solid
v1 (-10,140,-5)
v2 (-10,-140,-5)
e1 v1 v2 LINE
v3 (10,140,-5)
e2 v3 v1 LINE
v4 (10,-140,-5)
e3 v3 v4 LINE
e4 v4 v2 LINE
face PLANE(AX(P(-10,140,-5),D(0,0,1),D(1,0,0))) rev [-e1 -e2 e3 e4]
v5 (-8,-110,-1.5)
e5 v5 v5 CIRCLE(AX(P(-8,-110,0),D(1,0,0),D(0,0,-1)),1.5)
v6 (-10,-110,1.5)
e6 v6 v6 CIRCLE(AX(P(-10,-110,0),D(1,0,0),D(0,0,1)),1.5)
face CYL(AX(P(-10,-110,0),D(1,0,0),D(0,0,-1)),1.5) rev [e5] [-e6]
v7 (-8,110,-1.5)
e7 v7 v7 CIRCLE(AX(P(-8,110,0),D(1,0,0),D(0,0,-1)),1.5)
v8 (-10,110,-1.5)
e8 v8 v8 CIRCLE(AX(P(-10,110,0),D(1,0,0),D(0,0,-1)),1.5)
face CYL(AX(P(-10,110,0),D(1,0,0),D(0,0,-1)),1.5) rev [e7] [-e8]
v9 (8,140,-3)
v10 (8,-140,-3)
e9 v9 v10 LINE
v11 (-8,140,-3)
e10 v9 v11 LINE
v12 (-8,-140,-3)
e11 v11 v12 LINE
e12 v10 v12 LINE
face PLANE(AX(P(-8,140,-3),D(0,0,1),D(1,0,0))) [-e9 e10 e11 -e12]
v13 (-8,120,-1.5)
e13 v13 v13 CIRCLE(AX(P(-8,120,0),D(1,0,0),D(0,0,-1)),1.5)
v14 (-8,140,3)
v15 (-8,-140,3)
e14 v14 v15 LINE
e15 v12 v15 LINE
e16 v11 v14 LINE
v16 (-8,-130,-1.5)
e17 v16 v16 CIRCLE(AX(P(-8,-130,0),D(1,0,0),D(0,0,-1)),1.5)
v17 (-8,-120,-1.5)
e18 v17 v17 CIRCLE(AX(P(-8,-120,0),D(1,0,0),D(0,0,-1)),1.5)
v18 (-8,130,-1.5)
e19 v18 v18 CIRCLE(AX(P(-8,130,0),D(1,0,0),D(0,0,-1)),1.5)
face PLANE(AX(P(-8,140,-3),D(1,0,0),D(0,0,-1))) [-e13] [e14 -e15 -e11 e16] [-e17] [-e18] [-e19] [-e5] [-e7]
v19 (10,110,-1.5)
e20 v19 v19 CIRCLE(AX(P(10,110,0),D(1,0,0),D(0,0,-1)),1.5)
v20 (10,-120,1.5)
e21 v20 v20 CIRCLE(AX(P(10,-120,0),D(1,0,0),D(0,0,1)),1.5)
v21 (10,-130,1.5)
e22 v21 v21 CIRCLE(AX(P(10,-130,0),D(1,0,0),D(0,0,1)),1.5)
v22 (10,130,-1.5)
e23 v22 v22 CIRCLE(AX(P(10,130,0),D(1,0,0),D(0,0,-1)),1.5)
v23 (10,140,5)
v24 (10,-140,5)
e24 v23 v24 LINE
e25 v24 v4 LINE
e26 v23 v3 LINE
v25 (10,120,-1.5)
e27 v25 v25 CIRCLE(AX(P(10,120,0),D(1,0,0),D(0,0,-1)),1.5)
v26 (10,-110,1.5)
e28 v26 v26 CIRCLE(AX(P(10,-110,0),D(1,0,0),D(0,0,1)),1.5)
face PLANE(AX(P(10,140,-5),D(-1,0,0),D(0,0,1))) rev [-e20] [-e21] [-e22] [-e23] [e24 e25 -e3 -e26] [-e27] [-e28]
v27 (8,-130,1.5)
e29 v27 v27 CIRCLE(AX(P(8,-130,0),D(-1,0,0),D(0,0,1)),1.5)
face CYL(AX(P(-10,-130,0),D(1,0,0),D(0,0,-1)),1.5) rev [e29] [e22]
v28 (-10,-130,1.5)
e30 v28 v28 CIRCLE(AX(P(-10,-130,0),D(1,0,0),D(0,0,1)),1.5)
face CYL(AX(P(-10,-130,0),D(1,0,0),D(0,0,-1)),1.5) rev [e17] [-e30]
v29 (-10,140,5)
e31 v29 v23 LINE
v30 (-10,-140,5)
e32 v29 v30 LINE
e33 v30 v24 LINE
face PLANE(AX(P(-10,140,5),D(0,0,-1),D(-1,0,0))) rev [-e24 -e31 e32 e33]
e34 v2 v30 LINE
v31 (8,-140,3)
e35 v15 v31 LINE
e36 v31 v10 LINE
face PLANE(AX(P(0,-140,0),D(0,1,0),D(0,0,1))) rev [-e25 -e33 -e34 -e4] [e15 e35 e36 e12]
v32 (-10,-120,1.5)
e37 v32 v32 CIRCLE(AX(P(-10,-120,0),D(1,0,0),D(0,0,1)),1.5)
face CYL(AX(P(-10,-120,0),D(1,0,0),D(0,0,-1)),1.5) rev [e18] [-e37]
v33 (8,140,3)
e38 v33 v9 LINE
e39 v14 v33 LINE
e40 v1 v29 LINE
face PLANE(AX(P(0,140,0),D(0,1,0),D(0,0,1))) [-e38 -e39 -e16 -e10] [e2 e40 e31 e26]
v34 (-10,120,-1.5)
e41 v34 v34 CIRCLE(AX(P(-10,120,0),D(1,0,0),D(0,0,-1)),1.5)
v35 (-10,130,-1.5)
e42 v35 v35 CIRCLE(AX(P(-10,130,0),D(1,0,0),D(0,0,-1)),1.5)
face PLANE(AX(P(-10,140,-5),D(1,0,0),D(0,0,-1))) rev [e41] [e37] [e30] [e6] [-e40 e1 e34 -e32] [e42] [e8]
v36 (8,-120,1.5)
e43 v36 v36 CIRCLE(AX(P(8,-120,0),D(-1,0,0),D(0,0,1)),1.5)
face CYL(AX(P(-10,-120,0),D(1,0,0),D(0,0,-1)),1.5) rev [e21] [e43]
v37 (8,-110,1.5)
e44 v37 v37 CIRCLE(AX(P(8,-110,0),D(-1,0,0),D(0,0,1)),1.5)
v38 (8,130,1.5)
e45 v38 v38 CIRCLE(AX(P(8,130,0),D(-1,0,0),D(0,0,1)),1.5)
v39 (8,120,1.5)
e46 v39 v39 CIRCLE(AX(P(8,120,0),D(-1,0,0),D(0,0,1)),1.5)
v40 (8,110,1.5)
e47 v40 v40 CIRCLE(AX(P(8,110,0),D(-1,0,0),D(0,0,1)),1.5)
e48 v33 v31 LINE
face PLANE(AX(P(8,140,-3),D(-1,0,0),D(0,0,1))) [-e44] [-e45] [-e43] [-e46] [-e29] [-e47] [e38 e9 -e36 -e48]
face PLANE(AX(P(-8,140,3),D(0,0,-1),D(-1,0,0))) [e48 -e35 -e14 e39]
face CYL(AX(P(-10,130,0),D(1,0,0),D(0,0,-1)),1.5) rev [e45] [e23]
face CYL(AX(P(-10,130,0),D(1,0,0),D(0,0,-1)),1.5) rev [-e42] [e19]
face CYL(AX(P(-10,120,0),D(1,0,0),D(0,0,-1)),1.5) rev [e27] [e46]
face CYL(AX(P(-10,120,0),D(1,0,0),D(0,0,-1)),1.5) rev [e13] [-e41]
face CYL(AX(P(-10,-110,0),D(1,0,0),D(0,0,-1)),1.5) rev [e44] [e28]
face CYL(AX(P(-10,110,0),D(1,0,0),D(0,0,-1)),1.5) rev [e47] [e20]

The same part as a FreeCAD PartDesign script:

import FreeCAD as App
import Part
import Sketcher


def add_polygon(sketch, points):
    """Adds a closed chain of lines whose ends are joined by coincident constraints."""
    first, n = sketch.GeometryCount, len(points)
    for a, b in zip(points, points[1:] + points[:1]):
        sketch.addGeometry(Part.LineSegment(App.Vector(*a, 0), App.Vector(*b, 0)), False)
    for i in range(n):
        sketch.addConstraint(Sketcher.Constraint("Coincident", first + i, 2, first + (i + 1) % n, 1))

doc = App.newDocument("Part")
params = doc.addObject("Spreadsheet::Sheet", "Params")
for row, (alias, value) in enumerate([
    ("sketch1_width", "20 mm"),
    ("sketch1_width2", "16 mm"),
    ("sketch1_height", "10 mm"),
    ("sketch1_height2", "6 mm"),
    ("pad1_length", "280 mm"),
    ("sketch2_diameter", "3 mm"),
], start=1):
    params.set(f"A{row}", alias)
    params.set(f"B{row}", "=" + value)
    params.setAlias(f"B{row}", alias)

body = doc.addObject("PartDesign::Body", "Body")

# Sketch on XZ plane
sketch1 = body.newObject("Sketcher::SketchObject", "Sketch")
sketch1.AttachmentSupport = (doc.getObject("XZ_Plane"), [""])
sketch1.MapMode = "FlatFace"
add_polygon(sketch1, [(-10, -5), (-10, 5), (10, 5), (10, -5)])  # lines 0-3
add_polygon(sketch1, [(8, 3), (-8, 3), (-8, -3), (8, -3)])  # lines 4-7
sketch1.addConstraint([
    Sketcher.Constraint("Vertical", 0),
    Sketcher.Constraint("Horizontal", 1),
    Sketcher.Constraint("Vertical", 2),
    Sketcher.Constraint("Horizontal", 3),
    Sketcher.Constraint("Horizontal", 4),
    Sketcher.Constraint("Vertical", 5),
    Sketcher.Constraint("Horizontal", 6),
    Sketcher.Constraint("Vertical", 7),
    Sketcher.Constraint("Symmetric", 0, 2, 2, 2, -1, 1),
    Sketcher.Constraint("Symmetric", 4, 2, 6, 2, -1, 1),
    Sketcher.Constraint("DistanceX", 1, 1, 1, 2, 20.0),
    Sketcher.Constraint("DistanceX", 4, 2, 4, 1, 16.0),
    Sketcher.Constraint("DistanceY", 0, 1, 0, 2, 10.0),
    Sketcher.Constraint("DistanceY", 5, 2, 5, 1, 6.0),
])
sketch1.setExpression("Constraints[18]", "Params.sketch1_width")
sketch1.setExpression("Constraints[19]", "Params.sketch1_width2")
sketch1.setExpression("Constraints[20]", "Params.sketch1_height")
sketch1.setExpression("Constraints[21]", "Params.sketch1_height2")
pad1 = body.newObject("PartDesign::Pad", "Pad")
pad1.Profile = sketch1
pad1.setExpression("Length", "Params.pad1_length")
pad1.Midplane = True

# Sketch on YZ plane
sketch2 = body.newObject("Sketcher::SketchObject", "Sketch001")
sketch2.AttachmentSupport = (doc.getObject("YZ_Plane"), [""])
sketch2.MapMode = "FlatFace"
sketch2.AttachmentOffset = App.Placement(App.Vector(0, 0, 10), App.Rotation())
sketch2.addGeometry([
    Part.Circle(App.Vector(130, 0, 0), App.Vector(0, 0, 1), 1.5),  # 0
    Part.Circle(App.Vector(120, 0, 0), App.Vector(0, 0, 1), 1.5),  # 1
    Part.Circle(App.Vector(110, 0, 0), App.Vector(0, 0, 1), 1.5),  # 2
    Part.Circle(App.Vector(-110, 0, 0), App.Vector(0, 0, 1), 1.5),  # 3
    Part.Circle(App.Vector(-120, 0, 0), App.Vector(0, 0, 1), 1.5),  # 4
    Part.Circle(App.Vector(-130, 0, 0), App.Vector(0, 0, 1), 1.5),  # 5
], False)
sketch2.addConstraint([
    Sketcher.Constraint("Equal", 0, 1),
    Sketcher.Constraint("Equal", 1, 2),
    Sketcher.Constraint("Equal", 2, 3),
    Sketcher.Constraint("Equal", 3, 4),
    Sketcher.Constraint("Equal", 4, 5),
    Sketcher.Constraint("Symmetric", 2, 3, 3, 3, -1, 1),
    Sketcher.Constraint("Symmetric", 1, 3, 4, 3, -1, 1),
    Sketcher.Constraint("Symmetric", 0, 3, 5, 3, -1, 1),
    Sketcher.Constraint("PointOnObject", 0, 3, -1),
    Sketcher.Constraint("PointOnObject", 1, 3, -1),
    Sketcher.Constraint("PointOnObject", 2, 3, -1),
    Sketcher.Constraint("Diameter", 0, 3.0),
    Sketcher.Constraint("DistanceX", -1, 1, 0, 3, 130.0),
    Sketcher.Constraint("DistanceX", -1, 1, 1, 3, 120.0),
    Sketcher.Constraint("DistanceX", -1, 1, 2, 3, 110.0),
])
sketch2.setExpression("Constraints[11]", "Params.sketch2_diameter")
pocket1 = body.newObject("PartDesign::Pocket", "Pocket")
pocket1.Profile = sketch2
pocket1.Type = "ThroughAll"

doc.recompute()
